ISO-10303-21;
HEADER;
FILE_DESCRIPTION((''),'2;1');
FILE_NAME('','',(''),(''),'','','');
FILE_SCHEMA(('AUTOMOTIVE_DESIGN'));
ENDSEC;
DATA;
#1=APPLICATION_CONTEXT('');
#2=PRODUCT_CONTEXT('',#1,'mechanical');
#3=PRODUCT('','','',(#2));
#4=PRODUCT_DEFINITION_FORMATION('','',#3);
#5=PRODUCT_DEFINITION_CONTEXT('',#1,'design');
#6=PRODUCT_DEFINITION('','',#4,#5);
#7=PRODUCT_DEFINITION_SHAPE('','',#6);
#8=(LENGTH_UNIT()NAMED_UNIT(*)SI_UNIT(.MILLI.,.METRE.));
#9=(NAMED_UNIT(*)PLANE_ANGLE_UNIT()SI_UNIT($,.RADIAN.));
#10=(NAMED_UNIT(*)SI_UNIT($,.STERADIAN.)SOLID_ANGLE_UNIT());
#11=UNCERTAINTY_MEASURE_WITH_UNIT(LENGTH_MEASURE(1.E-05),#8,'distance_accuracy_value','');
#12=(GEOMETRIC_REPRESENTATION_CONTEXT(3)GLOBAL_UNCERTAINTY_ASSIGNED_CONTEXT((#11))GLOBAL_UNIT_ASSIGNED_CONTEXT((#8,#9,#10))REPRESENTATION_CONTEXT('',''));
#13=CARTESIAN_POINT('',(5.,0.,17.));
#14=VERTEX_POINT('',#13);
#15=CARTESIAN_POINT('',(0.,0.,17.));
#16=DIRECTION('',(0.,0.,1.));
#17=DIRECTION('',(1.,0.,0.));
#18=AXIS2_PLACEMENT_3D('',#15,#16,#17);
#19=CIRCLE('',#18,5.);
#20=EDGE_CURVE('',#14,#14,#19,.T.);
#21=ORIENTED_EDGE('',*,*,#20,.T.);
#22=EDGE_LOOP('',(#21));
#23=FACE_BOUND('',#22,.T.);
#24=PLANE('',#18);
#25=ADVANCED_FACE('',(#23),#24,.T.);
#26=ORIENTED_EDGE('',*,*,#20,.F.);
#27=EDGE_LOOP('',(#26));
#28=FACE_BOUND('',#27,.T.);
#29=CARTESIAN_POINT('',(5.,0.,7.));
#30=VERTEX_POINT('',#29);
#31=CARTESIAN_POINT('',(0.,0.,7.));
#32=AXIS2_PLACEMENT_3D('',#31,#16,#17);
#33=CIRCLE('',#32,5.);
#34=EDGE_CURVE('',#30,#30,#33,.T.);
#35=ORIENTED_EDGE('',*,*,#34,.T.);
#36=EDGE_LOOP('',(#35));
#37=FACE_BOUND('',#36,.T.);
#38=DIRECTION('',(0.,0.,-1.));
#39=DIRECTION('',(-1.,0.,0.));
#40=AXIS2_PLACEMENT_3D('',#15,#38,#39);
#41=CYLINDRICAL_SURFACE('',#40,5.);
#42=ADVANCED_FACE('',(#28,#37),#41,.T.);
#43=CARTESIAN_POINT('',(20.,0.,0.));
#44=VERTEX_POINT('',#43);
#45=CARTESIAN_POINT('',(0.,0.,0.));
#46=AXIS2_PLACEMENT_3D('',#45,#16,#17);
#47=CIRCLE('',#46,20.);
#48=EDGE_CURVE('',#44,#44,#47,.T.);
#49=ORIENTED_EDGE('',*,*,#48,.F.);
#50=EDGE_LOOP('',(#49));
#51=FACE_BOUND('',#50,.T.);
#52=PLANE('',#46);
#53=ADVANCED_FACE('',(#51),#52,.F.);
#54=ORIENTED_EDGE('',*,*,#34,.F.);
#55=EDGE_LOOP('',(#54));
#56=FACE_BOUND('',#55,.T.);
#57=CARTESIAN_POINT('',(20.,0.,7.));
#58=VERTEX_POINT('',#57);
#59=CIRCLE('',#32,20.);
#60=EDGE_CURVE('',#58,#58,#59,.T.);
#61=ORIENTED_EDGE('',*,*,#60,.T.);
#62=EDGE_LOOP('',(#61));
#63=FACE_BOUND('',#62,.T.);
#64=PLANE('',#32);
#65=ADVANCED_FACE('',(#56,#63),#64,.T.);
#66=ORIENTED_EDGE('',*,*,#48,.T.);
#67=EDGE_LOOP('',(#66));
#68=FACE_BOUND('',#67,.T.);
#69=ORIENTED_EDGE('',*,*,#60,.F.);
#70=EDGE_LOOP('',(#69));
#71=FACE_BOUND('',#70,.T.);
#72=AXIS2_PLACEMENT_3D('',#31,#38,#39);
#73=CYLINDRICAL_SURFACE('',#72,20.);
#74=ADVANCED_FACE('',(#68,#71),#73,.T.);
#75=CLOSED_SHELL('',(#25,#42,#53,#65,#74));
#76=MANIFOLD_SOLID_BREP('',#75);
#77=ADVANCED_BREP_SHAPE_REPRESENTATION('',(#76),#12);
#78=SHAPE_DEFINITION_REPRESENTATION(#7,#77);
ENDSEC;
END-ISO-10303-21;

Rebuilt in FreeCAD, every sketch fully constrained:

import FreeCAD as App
import Part
import Sketcher

doc = App.newDocument("Part")
body = doc.addObject("PartDesign::Body", "Body")

sketch1 = doc.addObject("Sketcher::SketchObject", "Sketch")
body.addObject(sketch1)
sketch1.AttachmentSupport = (doc.XY_Plane, [""])
sketch1.MapMode = "FlatFace"
sketch1.addGeometry(Part.Circle(App.Vector(0, 0, 0), App.Vector(0, 0, 1), 20), False)
sketch1.addConstraint(Sketcher.Constraint("Coincident", 0, 3, -1, 1))
sketch1.addConstraint(Sketcher.Constraint("Diameter", 0, 40.0))
pad1 = doc.addObject("PartDesign::Pad", "Pad")
body.addObject(pad1)
pad1.Profile = sketch1
pad1.Length = 7

sketch2 = doc.addObject("Sketcher::SketchObject", "Sketch001")
body.addObject(sketch2)
sketch2.AttachmentSupport = (doc.XY_Plane, [""])
sketch2.MapMode = "FlatFace"
sketch2.AttachmentOffset = App.Placement(App.Vector(0, 0, 7), App.Rotation())
sketch2.addGeometry(Part.Circle(App.Vector(0, 0, 0), App.Vector(0, 0, 1), 5), False)
sketch2.addConstraint(Sketcher.Constraint("Coincident", 0, 3, -1, 1))
sketch2.addConstraint(Sketcher.Constraint("Diameter", 0, 10.0))
pad2 = doc.addObject("PartDesign::Pad", "Pad001")
body.addObject(pad2)
pad2.Profile = sketch2
pad2.Length = 10

doc.recompute()
